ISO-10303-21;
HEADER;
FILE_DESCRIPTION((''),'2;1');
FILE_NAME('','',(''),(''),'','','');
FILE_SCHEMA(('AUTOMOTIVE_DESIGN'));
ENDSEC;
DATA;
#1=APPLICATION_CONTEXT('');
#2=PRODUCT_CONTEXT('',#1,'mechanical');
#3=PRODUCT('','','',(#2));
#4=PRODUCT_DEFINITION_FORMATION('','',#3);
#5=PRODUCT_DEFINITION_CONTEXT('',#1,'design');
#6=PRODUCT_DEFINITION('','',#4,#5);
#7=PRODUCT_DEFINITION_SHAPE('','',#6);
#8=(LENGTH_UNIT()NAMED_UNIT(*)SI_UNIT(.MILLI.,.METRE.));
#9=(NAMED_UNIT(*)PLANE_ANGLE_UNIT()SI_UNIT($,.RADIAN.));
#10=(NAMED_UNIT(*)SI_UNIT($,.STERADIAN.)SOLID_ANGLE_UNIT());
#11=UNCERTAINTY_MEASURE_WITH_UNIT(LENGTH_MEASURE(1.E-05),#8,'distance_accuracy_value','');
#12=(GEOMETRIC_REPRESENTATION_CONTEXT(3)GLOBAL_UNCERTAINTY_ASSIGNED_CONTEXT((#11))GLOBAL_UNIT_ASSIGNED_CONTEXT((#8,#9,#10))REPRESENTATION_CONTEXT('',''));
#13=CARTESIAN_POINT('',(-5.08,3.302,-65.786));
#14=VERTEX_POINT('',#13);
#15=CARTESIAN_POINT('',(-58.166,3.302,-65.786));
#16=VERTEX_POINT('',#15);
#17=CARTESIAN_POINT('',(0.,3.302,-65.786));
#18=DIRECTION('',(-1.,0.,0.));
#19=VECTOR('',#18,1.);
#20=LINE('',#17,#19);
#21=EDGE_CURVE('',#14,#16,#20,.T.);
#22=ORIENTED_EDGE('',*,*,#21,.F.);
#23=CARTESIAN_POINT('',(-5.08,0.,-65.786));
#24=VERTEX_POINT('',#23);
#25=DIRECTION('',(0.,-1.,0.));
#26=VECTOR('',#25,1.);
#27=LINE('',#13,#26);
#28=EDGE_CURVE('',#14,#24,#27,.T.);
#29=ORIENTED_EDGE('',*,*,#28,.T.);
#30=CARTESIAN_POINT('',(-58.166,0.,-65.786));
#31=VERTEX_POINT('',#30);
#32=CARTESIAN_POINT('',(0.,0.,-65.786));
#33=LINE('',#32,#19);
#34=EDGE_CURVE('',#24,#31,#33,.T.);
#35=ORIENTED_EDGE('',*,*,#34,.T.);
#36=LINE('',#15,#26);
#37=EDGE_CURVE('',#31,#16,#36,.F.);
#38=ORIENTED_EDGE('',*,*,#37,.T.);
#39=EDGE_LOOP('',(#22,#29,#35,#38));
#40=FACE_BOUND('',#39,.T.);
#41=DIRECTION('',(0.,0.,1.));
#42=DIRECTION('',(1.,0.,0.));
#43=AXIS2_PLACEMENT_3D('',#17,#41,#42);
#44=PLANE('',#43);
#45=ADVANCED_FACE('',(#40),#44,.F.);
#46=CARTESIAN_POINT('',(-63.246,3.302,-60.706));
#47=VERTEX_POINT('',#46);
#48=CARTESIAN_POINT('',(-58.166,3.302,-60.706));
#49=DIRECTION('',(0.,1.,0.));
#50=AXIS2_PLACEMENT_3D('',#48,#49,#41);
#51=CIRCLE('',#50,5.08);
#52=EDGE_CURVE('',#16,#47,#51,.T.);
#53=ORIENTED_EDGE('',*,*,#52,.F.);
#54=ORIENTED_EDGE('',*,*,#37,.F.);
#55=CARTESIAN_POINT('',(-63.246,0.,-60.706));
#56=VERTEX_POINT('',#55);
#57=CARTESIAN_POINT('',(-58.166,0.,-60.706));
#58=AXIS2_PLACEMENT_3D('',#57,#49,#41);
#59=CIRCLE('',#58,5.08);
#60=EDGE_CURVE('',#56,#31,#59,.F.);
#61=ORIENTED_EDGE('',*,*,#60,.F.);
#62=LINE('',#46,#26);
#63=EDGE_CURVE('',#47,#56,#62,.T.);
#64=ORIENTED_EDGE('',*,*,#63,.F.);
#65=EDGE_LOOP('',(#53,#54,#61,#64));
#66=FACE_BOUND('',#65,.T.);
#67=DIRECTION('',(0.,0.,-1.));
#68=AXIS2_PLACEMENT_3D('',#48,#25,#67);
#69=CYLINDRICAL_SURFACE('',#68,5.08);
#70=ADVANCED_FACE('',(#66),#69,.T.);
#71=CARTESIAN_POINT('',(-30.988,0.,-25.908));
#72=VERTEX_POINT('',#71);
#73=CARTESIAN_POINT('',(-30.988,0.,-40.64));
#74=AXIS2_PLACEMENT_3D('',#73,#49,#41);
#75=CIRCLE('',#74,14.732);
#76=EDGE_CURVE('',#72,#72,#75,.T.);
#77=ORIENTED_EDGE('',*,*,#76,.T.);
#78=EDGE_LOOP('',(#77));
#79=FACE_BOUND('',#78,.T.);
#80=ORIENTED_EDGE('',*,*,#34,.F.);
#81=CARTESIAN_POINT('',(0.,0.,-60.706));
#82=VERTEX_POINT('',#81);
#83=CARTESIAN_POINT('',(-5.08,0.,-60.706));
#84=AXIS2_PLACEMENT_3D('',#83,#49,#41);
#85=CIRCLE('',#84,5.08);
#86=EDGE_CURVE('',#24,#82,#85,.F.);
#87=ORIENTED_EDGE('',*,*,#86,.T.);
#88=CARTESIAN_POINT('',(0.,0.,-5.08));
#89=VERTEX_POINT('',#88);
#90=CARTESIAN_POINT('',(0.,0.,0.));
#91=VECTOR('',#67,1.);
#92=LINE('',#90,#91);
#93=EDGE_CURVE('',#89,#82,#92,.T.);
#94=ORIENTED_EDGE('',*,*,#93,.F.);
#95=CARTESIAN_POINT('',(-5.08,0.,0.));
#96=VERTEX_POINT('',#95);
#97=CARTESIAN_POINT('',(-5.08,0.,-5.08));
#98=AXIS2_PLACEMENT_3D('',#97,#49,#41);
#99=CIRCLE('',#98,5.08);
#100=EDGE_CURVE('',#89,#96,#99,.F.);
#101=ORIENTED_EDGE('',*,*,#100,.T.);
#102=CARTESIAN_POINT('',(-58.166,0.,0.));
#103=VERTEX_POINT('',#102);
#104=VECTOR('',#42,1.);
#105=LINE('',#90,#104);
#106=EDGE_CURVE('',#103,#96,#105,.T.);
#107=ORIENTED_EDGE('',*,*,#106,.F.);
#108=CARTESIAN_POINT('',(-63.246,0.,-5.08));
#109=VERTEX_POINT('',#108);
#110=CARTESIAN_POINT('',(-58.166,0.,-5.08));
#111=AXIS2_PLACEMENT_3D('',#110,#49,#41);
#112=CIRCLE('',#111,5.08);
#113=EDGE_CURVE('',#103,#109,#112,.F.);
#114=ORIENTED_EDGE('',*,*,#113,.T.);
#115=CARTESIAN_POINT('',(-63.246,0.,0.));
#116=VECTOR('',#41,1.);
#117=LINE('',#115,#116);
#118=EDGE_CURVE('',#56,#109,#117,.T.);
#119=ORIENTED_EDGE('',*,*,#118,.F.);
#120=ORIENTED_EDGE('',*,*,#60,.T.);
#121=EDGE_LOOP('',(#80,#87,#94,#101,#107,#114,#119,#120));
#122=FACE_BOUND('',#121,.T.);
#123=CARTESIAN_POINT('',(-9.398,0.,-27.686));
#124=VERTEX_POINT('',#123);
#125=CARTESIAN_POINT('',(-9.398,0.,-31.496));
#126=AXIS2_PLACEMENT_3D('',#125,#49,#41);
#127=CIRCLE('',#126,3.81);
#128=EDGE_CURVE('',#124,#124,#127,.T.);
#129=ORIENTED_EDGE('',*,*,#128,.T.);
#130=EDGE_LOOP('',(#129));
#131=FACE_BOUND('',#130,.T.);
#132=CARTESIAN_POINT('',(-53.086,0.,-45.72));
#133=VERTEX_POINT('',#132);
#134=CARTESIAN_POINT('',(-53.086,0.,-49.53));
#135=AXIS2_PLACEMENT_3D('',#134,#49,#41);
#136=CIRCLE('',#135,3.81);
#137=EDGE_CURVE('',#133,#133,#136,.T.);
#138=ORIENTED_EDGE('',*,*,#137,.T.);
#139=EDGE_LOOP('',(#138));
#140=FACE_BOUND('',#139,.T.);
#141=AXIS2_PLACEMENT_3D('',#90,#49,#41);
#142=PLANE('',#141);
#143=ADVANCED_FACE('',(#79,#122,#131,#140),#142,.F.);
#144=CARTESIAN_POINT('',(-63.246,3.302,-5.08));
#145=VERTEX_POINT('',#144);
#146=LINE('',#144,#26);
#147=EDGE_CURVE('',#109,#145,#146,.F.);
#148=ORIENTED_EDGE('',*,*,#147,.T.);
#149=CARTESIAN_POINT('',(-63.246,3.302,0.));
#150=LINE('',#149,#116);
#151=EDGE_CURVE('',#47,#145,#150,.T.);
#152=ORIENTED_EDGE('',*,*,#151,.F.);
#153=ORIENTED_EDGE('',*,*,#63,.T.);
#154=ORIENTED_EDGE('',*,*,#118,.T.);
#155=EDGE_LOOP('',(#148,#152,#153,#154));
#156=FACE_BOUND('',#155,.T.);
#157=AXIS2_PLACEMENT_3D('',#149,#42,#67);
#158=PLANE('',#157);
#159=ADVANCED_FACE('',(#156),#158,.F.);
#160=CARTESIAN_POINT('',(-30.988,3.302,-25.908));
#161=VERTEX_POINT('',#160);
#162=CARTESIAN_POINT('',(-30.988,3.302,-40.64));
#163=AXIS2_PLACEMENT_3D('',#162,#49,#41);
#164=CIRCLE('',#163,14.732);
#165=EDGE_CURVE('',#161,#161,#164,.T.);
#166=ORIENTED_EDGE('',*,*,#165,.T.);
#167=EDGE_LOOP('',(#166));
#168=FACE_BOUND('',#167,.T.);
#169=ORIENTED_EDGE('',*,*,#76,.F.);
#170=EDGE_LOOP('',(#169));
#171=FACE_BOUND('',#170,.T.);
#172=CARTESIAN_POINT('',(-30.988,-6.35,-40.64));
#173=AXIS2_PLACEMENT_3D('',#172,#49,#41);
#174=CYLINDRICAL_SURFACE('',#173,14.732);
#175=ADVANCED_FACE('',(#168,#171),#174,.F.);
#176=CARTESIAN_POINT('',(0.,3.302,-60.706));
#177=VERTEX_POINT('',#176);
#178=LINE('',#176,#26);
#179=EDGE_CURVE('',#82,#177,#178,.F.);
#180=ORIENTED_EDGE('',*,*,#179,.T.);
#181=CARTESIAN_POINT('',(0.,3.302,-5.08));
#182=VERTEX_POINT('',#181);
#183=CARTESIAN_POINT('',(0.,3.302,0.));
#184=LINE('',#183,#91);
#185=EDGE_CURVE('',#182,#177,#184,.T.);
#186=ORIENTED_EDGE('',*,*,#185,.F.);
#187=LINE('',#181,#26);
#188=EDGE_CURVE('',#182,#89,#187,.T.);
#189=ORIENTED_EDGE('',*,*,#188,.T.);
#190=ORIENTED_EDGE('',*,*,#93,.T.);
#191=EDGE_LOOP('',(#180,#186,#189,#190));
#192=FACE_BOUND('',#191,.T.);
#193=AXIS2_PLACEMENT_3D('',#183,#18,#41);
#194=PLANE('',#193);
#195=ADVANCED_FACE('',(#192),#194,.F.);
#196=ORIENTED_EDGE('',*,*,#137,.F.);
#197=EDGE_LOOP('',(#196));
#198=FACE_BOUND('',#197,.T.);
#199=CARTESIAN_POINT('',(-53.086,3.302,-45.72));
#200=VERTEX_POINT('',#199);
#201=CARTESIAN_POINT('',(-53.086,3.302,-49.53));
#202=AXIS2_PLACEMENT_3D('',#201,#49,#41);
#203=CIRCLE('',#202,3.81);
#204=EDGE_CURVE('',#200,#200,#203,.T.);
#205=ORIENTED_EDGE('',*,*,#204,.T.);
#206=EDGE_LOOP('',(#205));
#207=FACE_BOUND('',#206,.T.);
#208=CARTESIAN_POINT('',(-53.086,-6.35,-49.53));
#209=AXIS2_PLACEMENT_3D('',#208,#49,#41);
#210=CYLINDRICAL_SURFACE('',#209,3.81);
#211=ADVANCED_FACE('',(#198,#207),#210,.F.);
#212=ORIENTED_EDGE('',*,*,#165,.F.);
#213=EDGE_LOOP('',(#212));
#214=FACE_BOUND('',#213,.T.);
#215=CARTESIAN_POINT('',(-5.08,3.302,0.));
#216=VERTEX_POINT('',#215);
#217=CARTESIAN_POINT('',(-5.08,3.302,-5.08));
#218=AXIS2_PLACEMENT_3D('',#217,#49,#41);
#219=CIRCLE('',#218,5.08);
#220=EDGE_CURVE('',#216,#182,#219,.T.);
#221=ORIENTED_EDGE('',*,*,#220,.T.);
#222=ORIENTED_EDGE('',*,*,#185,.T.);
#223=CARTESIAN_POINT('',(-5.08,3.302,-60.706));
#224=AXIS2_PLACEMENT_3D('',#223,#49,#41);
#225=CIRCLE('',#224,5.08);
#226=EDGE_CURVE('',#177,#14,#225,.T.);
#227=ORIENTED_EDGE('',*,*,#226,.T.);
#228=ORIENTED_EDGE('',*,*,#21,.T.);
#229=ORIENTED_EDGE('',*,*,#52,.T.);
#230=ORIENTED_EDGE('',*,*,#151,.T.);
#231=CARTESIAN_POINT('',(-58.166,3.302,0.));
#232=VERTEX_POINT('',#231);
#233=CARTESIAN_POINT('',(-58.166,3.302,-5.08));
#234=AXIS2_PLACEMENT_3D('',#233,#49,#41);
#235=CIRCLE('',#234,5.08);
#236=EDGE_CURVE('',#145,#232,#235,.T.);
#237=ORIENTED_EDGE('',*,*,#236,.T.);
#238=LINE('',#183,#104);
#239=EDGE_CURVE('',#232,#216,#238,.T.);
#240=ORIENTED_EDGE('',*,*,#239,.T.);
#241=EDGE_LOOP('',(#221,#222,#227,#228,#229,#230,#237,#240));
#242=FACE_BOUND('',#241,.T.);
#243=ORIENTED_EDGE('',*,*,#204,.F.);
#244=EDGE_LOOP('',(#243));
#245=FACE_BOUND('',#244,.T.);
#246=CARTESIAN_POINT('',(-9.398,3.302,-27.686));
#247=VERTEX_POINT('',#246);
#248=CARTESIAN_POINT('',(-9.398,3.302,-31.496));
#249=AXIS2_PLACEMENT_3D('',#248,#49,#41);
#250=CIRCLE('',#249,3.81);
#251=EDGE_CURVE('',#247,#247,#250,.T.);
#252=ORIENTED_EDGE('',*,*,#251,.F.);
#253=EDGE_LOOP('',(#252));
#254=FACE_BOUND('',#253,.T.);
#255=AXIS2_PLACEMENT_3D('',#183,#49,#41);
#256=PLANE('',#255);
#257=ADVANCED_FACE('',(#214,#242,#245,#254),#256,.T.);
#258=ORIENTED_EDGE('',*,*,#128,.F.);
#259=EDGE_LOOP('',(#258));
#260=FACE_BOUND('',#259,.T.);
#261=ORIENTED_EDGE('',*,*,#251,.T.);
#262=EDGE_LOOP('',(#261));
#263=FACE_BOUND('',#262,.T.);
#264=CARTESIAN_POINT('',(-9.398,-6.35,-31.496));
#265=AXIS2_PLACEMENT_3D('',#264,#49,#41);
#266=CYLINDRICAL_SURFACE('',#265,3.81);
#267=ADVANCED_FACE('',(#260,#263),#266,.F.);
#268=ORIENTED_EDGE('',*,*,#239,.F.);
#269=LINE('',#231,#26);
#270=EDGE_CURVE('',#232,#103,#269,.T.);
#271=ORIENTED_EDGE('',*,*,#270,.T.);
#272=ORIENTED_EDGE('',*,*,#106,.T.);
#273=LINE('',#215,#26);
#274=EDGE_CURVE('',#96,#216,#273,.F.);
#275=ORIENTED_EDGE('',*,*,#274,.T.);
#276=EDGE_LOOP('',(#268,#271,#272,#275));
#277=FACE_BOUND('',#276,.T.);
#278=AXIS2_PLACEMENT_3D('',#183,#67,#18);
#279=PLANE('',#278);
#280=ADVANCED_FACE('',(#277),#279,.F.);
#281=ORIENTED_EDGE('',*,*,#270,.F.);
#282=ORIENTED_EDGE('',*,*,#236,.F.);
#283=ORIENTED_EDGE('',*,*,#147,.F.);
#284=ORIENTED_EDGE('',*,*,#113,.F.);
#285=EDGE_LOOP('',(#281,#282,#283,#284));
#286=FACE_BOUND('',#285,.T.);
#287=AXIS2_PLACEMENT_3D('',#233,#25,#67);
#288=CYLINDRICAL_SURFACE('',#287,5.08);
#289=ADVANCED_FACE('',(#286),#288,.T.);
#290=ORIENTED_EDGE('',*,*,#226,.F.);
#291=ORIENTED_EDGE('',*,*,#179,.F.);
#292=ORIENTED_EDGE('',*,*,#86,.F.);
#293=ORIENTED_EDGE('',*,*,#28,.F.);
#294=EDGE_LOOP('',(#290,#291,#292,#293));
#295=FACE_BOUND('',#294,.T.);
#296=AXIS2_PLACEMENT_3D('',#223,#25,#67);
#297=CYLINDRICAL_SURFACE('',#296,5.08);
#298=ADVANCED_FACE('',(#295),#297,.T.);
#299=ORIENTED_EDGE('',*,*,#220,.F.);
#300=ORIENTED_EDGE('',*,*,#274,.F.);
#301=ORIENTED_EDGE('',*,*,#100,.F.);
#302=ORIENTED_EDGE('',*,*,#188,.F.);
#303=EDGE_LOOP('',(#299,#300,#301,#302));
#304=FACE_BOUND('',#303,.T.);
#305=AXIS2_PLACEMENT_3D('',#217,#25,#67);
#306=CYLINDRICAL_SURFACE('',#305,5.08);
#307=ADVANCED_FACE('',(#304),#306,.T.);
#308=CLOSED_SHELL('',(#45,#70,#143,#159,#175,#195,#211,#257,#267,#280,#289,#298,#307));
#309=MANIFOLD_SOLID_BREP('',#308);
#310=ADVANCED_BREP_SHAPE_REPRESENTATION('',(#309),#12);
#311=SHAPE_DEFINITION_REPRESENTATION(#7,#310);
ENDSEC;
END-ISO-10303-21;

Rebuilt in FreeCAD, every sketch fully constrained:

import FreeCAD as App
import Part
import Sketcher
from FreeCAD import Vector
Q = App.Units.Quantity


def edges_at(feature, points):
    """Names of the edges that pass closest to the given points."""
    edges = feature.Shape.Edges
    near = lambda p: min(range(len(edges)), key=lambda i: edges[i].distToShape(Part.Vertex(*p))[0])
    return sorted({f"Edge{near(p) + 1}" for p in points})


def add_polygon(sketch, points):
    """Adds a closed chain of lines whose ends are joined by coincident constraints."""
    first, n = sketch.GeometryCount, len(points)
    for a, b in zip(points, points[1:] + points[:1]):
        sketch.addGeometry(Part.LineSegment(App.Vector(*a, 0), App.Vector(*b, 0)), False)
    for i in range(n):
        sketch.addConstraint(Sketcher.Constraint("Coincident", first + i, 2, first + (i + 1) % n, 1))

doc = App.newDocument("Part")
params = doc.addObject("Spreadsheet::Sheet", "Params")
for row, (alias, value) in enumerate([
    ("sketch1_width", "2.49 in"),
    ("sketch1_height", "2.59 in"),
    ("pad1_length", "0.13 in"),
    ("fillet_radius", "0.2 in"),
    ("sketch2_diameter", "0.3 in"),
    ("sketch2_diameter2", "1.16 in"),
    ("pocket1_length", "0.38 in"),
], start=1):
    params.set(f"A{row}", alias)
    params.set(f"B{row}", "=" + value)
    params.setAlias(f"B{row}", alias)

body = doc.addObject("PartDesign::Body", "Body")

# Sketch on XZ plane
sketch1 = body.newObject("Sketcher::SketchObject", "Sketch")
sketch1.AttachmentSupport = (doc.getObject("XZ_Plane"), [""])
sketch1.MapMode = "FlatFace"
add_polygon(sketch1, [(-63.246, -65.786), (-63.246, 0), (0, 0), (0, -65.786)])  # lines 0-3
sketch1.addConstraint(Sketcher.Constraint("Vertical", 0))
sketch1.addConstraint(Sketcher.Constraint("Horizontal", 1))
sketch1.addConstraint(Sketcher.Constraint("Vertical", 2))
sketch1.addConstraint(Sketcher.Constraint("Horizontal", 3))
sketch1.addConstraint(Sketcher.Constraint("Coincident", 1, 2, -1, 1))
sketch1.addConstraint(Sketcher.Constraint("DistanceX", 1, 1, 1, 2, Q("2.49 in")))
sketch1.addConstraint(Sketcher.Constraint("DistanceY", 0, 1, 0, 2, Q("2.59 in")))
sketch1.setExpression("Constraints[9]", "Params.sketch1_width")
sketch1.setExpression("Constraints[10]", "Params.sketch1_height")
pad1 = body.newObject("PartDesign::Pad", "Pad")
pad1.Profile = sketch1
pad1.setExpression("Length", "Params.pad1_length")
pad1.Reversed = True
doc.recompute()

fillet = body.newObject("PartDesign::Fillet", "Fillet")
fillet.Base = (pad1, edges_at(pad1, [
    (0, 1.651, 0),
    (-63.246, 1.651, 0),
    (-63.246, 1.651, -65.786),
    (0, 1.651, -65.786),
]))
fillet.setExpression("Radius", "Params.fillet_radius")

# Sketch on XZ plane
sketch2 = body.newObject("Sketcher::SketchObject", "Sketch001")
sketch2.AttachmentSupport = (doc.getObject("XZ_Plane"), [""])
sketch2.MapMode = "FlatFace"
sketch2.AttachmentOffset = App.Placement(Vector(0, 0, -0.13 * 25.4), App.Rotation())
sketch2.addGeometry(Part.Circle(Vector(-30.988, -40.64, 0), Vector(0, 0, 1), 14.732), False)
sketch2.addGeometry(Part.Circle(Vector(-53.086, -49.53, 0), Vector(0, 0, 1), 3.81), False)
sketch2.addGeometry(Part.Circle(Vector(-9.398, -31.496, 0), Vector(0, 0, 1), 3.81), False)
sketch2.addConstraint(Sketcher.Constraint("Equal", 1, 2))
sketch2.addConstraint(Sketcher.Constraint("Diameter", 1, Q("0.3 in")))
sketch2.addConstraint(Sketcher.Constraint("Diameter", 0, Q("1.16 in")))
sketch2.addConstraint(Sketcher.Constraint("DistanceY", 0, 3, -1, 1, Q("1.6 in")))
sketch2.addConstraint(Sketcher.Constraint("DistanceX", 0, 3, -1, 1, Q("1.22 in")))
sketch2.addConstraint(Sketcher.Constraint("DistanceX", 1, 3, -1, 1, Q("2.09 in")))
sketch2.addConstraint(Sketcher.Constraint("DistanceY", 1, 3, -1, 1, Q("1.95 in")))
sketch2.addConstraint(Sketcher.Constraint("DistanceX", 2, 3, -1, 1, Q("0.37 in")))
sketch2.addConstraint(Sketcher.Constraint("DistanceY", 2, 3, -1, 1, Q("1.24 in")))
sketch2.setExpression("Constraints[1]", "Params.sketch2_diameter")
sketch2.setExpression("Constraints[2]", "Params.sketch2_diameter2")
pocket1 = body.newObject("PartDesign::Pocket", "Pocket")
pocket1.Profile = sketch2
pocket1.setExpression("Length", "Params.pocket1_length")
pocket1.Reversed = True

doc.recompute()
